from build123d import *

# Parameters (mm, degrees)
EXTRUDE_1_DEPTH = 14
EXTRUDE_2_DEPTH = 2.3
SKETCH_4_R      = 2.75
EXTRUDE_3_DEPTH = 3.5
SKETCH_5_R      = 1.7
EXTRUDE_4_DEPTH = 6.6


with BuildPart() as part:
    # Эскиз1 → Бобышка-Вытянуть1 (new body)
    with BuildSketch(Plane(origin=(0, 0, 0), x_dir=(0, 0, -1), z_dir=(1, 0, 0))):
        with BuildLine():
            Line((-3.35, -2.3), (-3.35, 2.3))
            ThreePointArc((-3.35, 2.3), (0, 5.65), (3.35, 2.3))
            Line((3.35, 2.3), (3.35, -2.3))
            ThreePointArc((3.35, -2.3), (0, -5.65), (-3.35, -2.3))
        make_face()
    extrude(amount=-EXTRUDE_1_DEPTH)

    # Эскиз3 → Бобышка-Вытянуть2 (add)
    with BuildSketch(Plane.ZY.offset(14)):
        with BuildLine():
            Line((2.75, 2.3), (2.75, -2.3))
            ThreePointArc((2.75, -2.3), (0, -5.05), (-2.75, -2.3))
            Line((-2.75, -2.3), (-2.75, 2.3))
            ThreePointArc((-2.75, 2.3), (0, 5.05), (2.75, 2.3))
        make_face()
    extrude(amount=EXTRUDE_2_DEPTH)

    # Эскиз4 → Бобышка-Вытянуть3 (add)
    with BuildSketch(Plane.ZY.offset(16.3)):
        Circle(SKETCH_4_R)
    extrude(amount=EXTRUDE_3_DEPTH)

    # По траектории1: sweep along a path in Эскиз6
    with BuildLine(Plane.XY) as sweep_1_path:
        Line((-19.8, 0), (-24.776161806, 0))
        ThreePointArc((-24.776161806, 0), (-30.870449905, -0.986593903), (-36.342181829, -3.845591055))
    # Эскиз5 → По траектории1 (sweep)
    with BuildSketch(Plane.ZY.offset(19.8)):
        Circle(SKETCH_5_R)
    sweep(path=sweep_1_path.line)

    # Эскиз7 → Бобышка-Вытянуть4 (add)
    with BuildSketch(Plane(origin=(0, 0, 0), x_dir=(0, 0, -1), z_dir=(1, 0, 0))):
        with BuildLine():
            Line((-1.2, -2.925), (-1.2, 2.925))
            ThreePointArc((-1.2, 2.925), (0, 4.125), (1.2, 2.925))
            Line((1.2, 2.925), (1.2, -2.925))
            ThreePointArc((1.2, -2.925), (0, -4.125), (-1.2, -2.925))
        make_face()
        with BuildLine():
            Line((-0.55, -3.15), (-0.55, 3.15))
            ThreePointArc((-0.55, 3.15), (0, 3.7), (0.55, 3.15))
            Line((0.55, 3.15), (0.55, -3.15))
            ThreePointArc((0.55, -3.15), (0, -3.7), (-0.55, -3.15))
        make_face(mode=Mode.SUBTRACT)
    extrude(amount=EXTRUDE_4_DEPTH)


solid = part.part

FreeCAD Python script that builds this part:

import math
import FreeCAD as App
import Part
import Sketcher

doc = App.newDocument("Part")
body = doc.addObject("PartDesign::Body", "Body")

# Sketch on YZ plane
sketch1 = doc.addObject("Sketcher::SketchObject", "Sketch")
body.addObject(sketch1)
sketch1.AttachmentSupport = (doc.YZ_Plane, [""])
sketch1.MapMode = "FlatFace"
sketch1.addGeometry([
    Part.LineSegment(App.Vector(2.3, 3.4, 0), App.Vector(-2.3, 3.4, 0)),
    Part.ArcOfCircle(Part.Circle(App.Vector(-2.3, 0, 0), App.Vector(0, 0, 1), 3.4), math.radians(90), math.radians(270)),
    Part.LineSegment(App.Vector(-2.3, -3.4, 0), App.Vector(2.3, -3.4, 0)),
    Part.ArcOfCircle(Part.Circle(App.Vector(2.3, 0, 0), App.Vector(0, 0, 1), 3.4), math.radians(-90), math.radians(90)),
], False)
sketch1.addConstraint([
    Sketcher.Constraint("Tangent", 0, 2, 1, 1),
    Sketcher.Constraint("Tangent", 1, 2, 2, 1),
    Sketcher.Constraint("Tangent", 2, 2, 3, 1),
    Sketcher.Constraint("Tangent", 3, 2, 0, 1),
    Sketcher.Constraint("Horizontal", 0),
    Sketcher.Constraint("Horizontal", 2),
    Sketcher.Constraint("Symmetric", 1, 3, 3, 3, -1, 1),
    Sketcher.Constraint("Radius", 1, 3.35),
    Sketcher.Constraint("DistanceX", 0, 2, 0, 1, 4.6),
])
pad1 = doc.addObject("PartDesign::Pad", "Pad")
body.addObject(pad1)
pad1.Profile = sketch1
pad1.Length = 14
pad1.Reversed = True

# Sketch on YZ plane
sketch2 = doc.addObject("Sketcher::SketchObject", "Sketch001")
body.addObject(sketch2)
sketch2.AttachmentSupport = (doc.YZ_Plane, [""])
sketch2.MapMode = "FlatFace"
sketch2.AttachmentOffset = App.Placement(App.Vector(0, 0, -14), App.Rotation())
sketch2.addGeometry([
    Part.LineSegment(App.Vector(-2.3, 2.8, 0), App.Vector(2.3, 2.8, 0)),
    Part.ArcOfCircle(Part.Circle(App.Vector(2.3, 0, 0), App.Vector(0, 0, 1), 2.8), math.radians(-90), math.radians(90)),
    Part.LineSegment(App.Vector(2.3, -2.8, 0), App.Vector(-2.3, -2.8, 0)),
    Part.ArcOfCircle(Part.Circle(App.Vector(-2.3, 0, 0), App.Vector(0, 0, 1), 2.8), math.radians(90), math.radians(270)),
], False)
sketch2.addConstraint([
    Sketcher.Constraint("Tangent", 0, 2, 1, 2),
    Sketcher.Constraint("Tangent", 1, 1, 2, 1),
    Sketcher.Constraint("Tangent", 2, 2, 3, 2),
    Sketcher.Constraint("Tangent", 3, 1, 0, 1),
    Sketcher.Constraint("Horizontal", 0),
    Sketcher.Constraint("Horizontal", 2),
    Sketcher.Constraint("Symmetric", 1, 3, 3, 3, -1, 1),
    Sketcher.Constraint("Radius", 1, 2.75),
    Sketcher.Constraint("DistanceX", 0, 1, 0, 2, 4.6),
])
pad2 = doc.addObject("PartDesign::Pad", "Pad001")
body.addObject(pad2)
pad2.Profile = sketch2
pad2.Length = 2.3
pad2.Reversed = True

# Sketch on YZ plane
sketch3 = doc.addObject("Sketcher::SketchObject", "Sketch002")
body.addObject(sketch3)
sketch3.AttachmentSupport = (doc.YZ_Plane, [""])
sketch3.MapMode = "FlatFace"
sketch3.AttachmentOffset = App.Placement(App.Vector(0, 0, -16.3), App.Rotation())
sketch3.addGeometry(Part.Circle(App.Vector(0, 0, 0), App.Vector(0, 0, 1), 2.8), False)
sketch3.addConstraint([
    Sketcher.Constraint("Coincident", 0, 3, -1, 1),
    Sketcher.Constraint("Diameter", 0, 5.5),
])
pad3 = doc.addObject("PartDesign::Pad", "Pad002")
body.addObject(pad3)
pad3.Profile = sketch3
pad3.Length = 3.5
pad3.Reversed = True

# Sketch on YZ plane
sketch4 = doc.addObject("Sketcher::SketchObject", "Sketch003")
body.addObject(sketch4)
sketch4.AttachmentSupport = (doc.YZ_Plane, [""])
sketch4.MapMode = "FlatFace"
sketch4.AttachmentOffset = App.Placement(App.Vector(0, 0, -19.8), App.Rotation())
sketch4.addGeometry(Part.Circle(App.Vector(0, 0, 0), App.Vector(0, 0, 1), 1.7), False)
sketch4.addConstraint([
    Sketcher.Constraint("Coincident", 0, 3, -1, 1),
    Sketcher.Constraint("Diameter", 0, 3.4),
])

# Sketch on XY plane
sketch5 = doc.addObject("Sketcher::SketchObject", "Sketch004")
body.addObject(sketch5)
sketch5.AttachmentSupport = (doc.XY_Plane, [""])
sketch5.MapMode = "FlatFace"
sketch5.addGeometry([
    Part.LineSegment(App.Vector(-19.8, 0, 0), App.Vector(-24.8, 0, 0)),
    Part.ArcOfCircle(Part.Circle(App.Vector(-24.8, -19.3, 0), App.Vector(0, 0, 1), 19.3), math.radians(90), math.radians(127)),
], False)
sketch5.addConstraint([
    Sketcher.Constraint("Tangent", 0, 2, 1, 1),
    Sketcher.Constraint("Horizontal", 0),
    Sketcher.Constraint("PointOnObject", 0, 1, -1),
    Sketcher.Constraint("DistanceX", 0, 1, -1, 1, 19.8),
    Sketcher.Constraint("Radius", 1, 19.315807),
    Sketcher.Constraint("DistanceX", 0, 2, 0, 1, 4.976162),
    Sketcher.Constraint("DistanceX", 1, 2, -1, 1, 36.342182),
])
doc.recompute()

additivepipe = doc.addObject("PartDesign::AdditivePipe", "AdditivePipe")
body.addObject(additivepipe)
additivepipe.Profile = sketch4
additivepipe.Spine = (sketch5, ["Edge1", "Edge2"])

# Sketch on YZ plane
sketch6 = doc.addObject("Sketcher::SketchObject", "Sketch005")
body.addObject(sketch6)
sketch6.AttachmentSupport = (doc.YZ_Plane, [""])
sketch6.MapMode = "FlatFace"
sketch6.addGeometry([
    Part.LineSegment(App.Vector(2.9, 1.2, 0), App.Vector(-2.9, 1.2, 0)),  # 0
    Part.ArcOfCircle(Part.Circle(App.Vector(-2.9, 0, 0), App.Vector(0, 0, 1), 1.2), math.radians(90), math.radians(270)),  # 1
    Part.LineSegment(App.Vector(-2.9, -1.2, 0), App.Vector(2.9, -1.2, 0)),  # 2
    Part.ArcOfCircle(Part.Circle(App.Vector(2.9, 0, 0), App.Vector(0, 0, 1), 1.2), math.radians(-90), math.radians(90)),  # 3
    Part.LineSegment(App.Vector(-3.1, 0.6, 0), App.Vector(3.1, 0.6, 0)),  # 4
    Part.ArcOfCircle(Part.Circle(App.Vector(3.1, 0, 0), App.Vector(0, 0, 1), 0.6), math.radians(-90), math.radians(90)),  # 5
    Part.LineSegment(App.Vector(3.1, -0.6, 0), App.Vector(-3.1, -0.6, 0)),  # 6
    Part.ArcOfCircle(Part.Circle(App.Vector(-3.1, 0, 0), App.Vector(0, 0, 1), 0.6), math.radians(90), math.radians(270)),  # 7
], False)
sketch6.addConstraint([
    Sketcher.Constraint("Tangent", 0, 2, 1, 1),
    Sketcher.Constraint("Tangent", 1, 2, 2, 1),
    Sketcher.Constraint("Tangent", 2, 2, 3, 1),
    Sketcher.Constraint("Tangent", 3, 2, 0, 1),
    Sketcher.Constraint("Tangent", 4, 2, 5, 2),
    Sketcher.Constraint("Tangent", 5, 1, 6, 1),
    Sketcher.Constraint("Tangent", 6, 2, 7, 2),
    Sketcher.Constraint("Tangent", 7, 1, 4, 1),
    Sketcher.Constraint("Horizontal", 0),
    Sketcher.Constraint("Horizontal", 2),
    Sketcher.Constraint("Horizontal", 4),
    Sketcher.Constraint("Horizontal", 6),
    Sketcher.Constraint("Symmetric", 1, 3, 3, 3, -1, 1),
    Sketcher.Constraint("Symmetric", 5, 3, 7, 3, -1, 1),
    Sketcher.Constraint("Radius", 1, 1.2),
    Sketcher.Constraint("Radius", 5, 0.55),
    Sketcher.Constraint("DistanceX", 4, 1, 4, 2, 6.3),
    Sketcher.Constraint("DistanceX", 0, 2, 0, 1, 5.85),
])
pad4 = doc.addObject("PartDesign::Pad", "Pad003")
body.addObject(pad4)
pad4.Profile = sketch6
pad4.Length = 6.6

doc.recompute()
